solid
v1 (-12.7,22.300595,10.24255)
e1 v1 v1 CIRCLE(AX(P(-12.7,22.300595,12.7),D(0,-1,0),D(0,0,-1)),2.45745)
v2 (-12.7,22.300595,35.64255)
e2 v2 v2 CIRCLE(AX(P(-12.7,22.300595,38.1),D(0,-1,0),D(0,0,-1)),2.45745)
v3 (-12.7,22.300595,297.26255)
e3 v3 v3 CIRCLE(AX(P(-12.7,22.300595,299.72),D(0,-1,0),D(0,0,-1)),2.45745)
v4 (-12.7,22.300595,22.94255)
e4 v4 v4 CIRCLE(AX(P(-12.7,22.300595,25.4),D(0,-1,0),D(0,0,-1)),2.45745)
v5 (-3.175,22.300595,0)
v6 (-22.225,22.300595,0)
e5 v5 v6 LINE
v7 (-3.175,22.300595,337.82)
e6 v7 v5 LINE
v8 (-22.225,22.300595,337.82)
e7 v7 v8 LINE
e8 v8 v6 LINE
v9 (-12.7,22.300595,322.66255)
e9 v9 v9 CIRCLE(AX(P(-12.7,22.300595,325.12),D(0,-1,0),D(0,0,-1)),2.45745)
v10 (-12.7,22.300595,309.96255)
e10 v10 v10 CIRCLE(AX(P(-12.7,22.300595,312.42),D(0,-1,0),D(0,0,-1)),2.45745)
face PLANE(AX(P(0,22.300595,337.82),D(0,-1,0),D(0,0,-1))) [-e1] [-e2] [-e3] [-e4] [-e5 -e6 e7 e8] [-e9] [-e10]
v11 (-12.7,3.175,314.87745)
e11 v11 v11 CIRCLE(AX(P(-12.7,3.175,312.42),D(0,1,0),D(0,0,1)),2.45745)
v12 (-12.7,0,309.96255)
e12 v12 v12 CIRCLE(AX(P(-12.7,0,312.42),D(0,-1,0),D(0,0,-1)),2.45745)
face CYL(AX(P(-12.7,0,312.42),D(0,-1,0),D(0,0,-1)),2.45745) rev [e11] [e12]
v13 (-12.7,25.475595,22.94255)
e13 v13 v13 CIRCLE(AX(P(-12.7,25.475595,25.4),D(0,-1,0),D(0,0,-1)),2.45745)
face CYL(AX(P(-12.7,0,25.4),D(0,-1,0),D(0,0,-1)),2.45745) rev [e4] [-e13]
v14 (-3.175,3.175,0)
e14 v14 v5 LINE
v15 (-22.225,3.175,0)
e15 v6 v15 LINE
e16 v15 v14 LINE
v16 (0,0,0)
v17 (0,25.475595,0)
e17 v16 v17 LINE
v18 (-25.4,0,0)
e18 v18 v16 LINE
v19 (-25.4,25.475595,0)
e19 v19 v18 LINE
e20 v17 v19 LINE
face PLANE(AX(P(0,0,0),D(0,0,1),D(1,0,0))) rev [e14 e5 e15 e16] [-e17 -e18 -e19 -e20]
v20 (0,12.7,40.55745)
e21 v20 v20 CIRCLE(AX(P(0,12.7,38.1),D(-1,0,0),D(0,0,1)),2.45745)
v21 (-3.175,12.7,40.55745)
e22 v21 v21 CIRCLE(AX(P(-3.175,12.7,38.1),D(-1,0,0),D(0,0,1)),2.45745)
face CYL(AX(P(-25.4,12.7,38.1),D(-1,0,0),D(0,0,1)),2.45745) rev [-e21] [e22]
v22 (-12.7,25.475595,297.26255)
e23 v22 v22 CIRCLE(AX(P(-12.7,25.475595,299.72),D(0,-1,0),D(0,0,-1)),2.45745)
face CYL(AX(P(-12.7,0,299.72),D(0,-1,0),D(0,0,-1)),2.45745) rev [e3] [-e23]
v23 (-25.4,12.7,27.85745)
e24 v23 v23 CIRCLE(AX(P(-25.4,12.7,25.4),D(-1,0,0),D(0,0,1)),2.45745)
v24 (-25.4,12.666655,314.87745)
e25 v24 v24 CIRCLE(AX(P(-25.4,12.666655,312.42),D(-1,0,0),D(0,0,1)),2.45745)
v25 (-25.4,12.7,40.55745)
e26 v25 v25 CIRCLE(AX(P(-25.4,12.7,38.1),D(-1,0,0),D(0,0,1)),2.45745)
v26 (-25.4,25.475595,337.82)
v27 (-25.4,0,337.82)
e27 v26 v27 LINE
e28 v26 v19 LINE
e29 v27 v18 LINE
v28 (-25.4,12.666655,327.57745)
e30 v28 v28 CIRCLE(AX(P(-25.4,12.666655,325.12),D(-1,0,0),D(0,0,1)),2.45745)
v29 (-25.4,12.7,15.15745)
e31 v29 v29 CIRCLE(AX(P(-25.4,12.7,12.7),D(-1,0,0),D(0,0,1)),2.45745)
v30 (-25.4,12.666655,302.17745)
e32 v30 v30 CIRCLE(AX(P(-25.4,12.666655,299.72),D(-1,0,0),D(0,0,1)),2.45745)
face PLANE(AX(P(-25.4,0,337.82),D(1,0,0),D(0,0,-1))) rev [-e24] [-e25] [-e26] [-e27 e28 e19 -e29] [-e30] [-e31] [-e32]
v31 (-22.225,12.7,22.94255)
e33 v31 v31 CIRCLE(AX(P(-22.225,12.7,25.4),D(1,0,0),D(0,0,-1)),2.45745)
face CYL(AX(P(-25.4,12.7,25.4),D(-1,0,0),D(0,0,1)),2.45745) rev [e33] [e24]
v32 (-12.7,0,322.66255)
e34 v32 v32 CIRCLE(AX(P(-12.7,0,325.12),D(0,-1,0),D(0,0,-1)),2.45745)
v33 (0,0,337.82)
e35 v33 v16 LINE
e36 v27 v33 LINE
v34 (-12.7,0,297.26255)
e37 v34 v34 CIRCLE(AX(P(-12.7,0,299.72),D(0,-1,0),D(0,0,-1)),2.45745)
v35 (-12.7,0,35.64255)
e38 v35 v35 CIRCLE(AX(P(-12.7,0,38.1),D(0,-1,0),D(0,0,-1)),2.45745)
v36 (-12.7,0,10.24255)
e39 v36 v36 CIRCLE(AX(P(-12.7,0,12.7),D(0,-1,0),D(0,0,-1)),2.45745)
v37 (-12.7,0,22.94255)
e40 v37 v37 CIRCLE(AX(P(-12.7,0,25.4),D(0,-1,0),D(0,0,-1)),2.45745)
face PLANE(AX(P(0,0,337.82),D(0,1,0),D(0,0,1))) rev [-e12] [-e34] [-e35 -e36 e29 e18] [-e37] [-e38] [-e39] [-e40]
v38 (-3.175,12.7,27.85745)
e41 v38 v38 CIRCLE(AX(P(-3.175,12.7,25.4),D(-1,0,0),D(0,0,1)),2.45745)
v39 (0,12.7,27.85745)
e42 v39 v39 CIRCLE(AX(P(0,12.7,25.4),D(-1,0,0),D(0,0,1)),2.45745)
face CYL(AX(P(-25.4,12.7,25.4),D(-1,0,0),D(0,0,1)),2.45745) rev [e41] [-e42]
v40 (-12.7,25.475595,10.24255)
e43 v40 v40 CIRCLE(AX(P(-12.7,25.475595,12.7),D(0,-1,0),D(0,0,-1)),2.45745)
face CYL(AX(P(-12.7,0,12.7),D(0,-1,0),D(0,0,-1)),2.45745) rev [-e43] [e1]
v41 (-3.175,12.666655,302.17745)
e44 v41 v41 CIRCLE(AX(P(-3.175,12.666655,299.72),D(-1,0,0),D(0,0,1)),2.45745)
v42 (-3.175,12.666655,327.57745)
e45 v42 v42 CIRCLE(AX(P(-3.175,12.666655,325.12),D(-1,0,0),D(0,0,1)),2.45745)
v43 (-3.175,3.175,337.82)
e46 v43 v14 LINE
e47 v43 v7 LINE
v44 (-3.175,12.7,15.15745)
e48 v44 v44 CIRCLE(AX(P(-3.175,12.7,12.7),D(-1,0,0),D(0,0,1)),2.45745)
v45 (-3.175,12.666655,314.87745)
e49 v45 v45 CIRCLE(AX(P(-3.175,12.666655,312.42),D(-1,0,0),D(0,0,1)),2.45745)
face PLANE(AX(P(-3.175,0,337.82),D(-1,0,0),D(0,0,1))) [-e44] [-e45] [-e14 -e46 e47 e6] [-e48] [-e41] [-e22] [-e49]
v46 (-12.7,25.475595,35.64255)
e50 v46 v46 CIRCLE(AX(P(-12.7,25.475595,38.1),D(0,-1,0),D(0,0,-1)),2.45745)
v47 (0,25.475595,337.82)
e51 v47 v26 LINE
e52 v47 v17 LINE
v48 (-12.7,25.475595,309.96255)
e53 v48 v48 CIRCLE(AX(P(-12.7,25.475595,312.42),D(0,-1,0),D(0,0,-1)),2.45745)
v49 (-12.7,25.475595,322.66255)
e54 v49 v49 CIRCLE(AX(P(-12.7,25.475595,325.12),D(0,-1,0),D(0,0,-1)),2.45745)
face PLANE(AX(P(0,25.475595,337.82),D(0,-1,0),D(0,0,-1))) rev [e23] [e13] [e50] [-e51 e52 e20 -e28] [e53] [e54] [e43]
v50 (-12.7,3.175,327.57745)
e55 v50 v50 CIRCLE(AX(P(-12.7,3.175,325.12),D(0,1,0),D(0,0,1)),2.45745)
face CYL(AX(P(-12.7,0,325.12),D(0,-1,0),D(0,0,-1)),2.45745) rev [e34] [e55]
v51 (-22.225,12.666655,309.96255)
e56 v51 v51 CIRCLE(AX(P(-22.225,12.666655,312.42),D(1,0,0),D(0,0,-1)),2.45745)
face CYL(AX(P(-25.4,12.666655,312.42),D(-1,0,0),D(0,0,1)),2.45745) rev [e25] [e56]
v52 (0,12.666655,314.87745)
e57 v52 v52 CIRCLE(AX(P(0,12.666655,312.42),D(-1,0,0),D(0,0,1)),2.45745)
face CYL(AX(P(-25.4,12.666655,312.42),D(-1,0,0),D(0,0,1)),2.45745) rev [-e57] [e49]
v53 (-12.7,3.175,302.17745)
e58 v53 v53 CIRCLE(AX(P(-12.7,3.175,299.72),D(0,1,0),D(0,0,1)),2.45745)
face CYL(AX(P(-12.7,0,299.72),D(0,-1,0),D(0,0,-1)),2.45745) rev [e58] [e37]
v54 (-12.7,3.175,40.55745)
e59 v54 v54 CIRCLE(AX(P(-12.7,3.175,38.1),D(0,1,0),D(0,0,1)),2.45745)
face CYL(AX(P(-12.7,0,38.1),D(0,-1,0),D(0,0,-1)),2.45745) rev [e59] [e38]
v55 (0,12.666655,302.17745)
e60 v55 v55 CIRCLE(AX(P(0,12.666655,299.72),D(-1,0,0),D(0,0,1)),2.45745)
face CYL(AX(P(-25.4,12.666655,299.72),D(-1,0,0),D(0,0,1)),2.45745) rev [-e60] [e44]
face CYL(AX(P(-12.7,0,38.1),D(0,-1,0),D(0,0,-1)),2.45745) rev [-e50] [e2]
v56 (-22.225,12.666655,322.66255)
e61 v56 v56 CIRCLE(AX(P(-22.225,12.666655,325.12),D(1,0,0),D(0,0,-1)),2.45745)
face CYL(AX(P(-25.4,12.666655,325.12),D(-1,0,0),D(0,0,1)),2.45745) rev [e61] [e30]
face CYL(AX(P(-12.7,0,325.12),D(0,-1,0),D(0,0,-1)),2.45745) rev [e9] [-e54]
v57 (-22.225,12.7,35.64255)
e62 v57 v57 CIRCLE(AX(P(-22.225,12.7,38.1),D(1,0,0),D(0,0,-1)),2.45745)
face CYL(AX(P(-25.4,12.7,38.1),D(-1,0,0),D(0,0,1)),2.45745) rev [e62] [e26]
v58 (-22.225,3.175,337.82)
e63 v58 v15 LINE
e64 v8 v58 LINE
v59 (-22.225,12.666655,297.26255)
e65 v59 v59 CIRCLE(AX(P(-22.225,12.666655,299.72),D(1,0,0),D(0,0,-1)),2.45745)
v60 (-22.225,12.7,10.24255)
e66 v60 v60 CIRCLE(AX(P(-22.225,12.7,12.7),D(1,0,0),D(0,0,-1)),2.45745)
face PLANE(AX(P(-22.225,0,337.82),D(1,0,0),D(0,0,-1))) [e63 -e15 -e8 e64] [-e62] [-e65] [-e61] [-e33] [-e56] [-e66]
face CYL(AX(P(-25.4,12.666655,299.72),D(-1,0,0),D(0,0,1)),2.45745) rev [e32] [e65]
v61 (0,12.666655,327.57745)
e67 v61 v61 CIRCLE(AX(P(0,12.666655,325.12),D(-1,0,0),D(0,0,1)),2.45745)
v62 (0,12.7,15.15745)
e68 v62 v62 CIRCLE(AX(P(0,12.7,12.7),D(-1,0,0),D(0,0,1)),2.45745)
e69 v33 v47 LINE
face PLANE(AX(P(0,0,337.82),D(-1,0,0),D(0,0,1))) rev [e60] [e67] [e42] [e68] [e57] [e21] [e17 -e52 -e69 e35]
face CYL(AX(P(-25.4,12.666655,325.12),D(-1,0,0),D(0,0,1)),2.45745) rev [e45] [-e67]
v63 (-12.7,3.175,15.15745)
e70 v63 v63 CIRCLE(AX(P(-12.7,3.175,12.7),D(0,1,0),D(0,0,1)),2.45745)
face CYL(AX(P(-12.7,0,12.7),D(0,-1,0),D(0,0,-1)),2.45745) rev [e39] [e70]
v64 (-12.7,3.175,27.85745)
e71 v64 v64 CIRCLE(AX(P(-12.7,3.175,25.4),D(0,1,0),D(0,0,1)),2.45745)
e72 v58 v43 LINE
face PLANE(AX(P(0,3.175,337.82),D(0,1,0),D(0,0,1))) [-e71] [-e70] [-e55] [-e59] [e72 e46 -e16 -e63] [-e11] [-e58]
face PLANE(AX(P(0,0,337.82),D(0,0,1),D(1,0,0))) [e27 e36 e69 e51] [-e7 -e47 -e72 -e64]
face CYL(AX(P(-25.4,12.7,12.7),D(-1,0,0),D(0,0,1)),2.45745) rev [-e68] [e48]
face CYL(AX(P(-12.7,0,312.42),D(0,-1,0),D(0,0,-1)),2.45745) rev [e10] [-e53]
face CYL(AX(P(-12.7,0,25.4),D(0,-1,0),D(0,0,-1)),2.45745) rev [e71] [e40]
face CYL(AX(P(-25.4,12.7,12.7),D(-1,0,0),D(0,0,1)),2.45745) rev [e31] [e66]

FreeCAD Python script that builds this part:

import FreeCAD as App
import Part
import Sketcher

V = App.Vector
Q = App.Units.Quantity

doc = App.newDocument("Part")
body = doc.addObject("PartDesign::Body", "Body")

sketch1 = doc.addObject("Sketcher::SketchObject", "Sketch")
body.addObject(sketch1)
sketch1.AttachmentSupport = (doc.XY_Plane, [""])
sketch1.MapMode = "FlatFace"
sketch1.addGeometry(Part.LineSegment(V(-25, 25, 0), V(-25, 0, 0)), False)
sketch1.addGeometry(Part.LineSegment(V(-25, 0, 0), V(0, 0, 0)), False)
sketch1.addGeometry(Part.LineSegment(V(0, 0, 0), V(0, 25, 0)), False)
sketch1.addGeometry(Part.LineSegment(V(0, 25, 0), V(-25, 25, 0)), False)
sketch1.addGeometry(Part.LineSegment(V(-3, 3, 0), V(-22, 3, 0)), False)
sketch1.addGeometry(Part.LineSegment(V(-22, 3, 0), V(-22, 22, 0)), False)
sketch1.addGeometry(Part.LineSegment(V(-22, 22, 0), V(-3, 22, 0)), False)
sketch1.addGeometry(Part.LineSegment(V(-3, 22, 0), V(-3, 3, 0)), False)
sketch1.addConstraint(Sketcher.Constraint("Coincident", 0, 2, 1, 1))
sketch1.addConstraint(Sketcher.Constraint("Coincident", 1, 2, 2, 1))
sketch1.addConstraint(Sketcher.Constraint("Coincident", 2, 2, 3, 1))
sketch1.addConstraint(Sketcher.Constraint("Coincident", 3, 2, 0, 1))
sketch1.addConstraint(Sketcher.Constraint("Coincident", 4, 2, 5, 1))
sketch1.addConstraint(Sketcher.Constraint("Coincident", 5, 2, 6, 1))
sketch1.addConstraint(Sketcher.Constraint("Coincident", 6, 2, 7, 1))
sketch1.addConstraint(Sketcher.Constraint("Coincident", 7, 2, 4, 1))
sketch1.addConstraint(Sketcher.Constraint("Vertical", 0))
sketch1.addConstraint(Sketcher.Constraint("Horizontal", 1))
sketch1.addConstraint(Sketcher.Constraint("Vertical", 2))
sketch1.addConstraint(Sketcher.Constraint("Horizontal", 3))
sketch1.addConstraint(Sketcher.Constraint("Horizontal", 4))
sketch1.addConstraint(Sketcher.Constraint("Vertical", 5))
sketch1.addConstraint(Sketcher.Constraint("Horizontal", 6))
sketch1.addConstraint(Sketcher.Constraint("Vertical", 7))
sketch1.addConstraint(Sketcher.Constraint("Coincident", 1, 2, -1, 1))
sketch1.addConstraint(Sketcher.Constraint("DistanceX", 1, 1, 1, 2, Q("1 in")))
sketch1.addConstraint(Sketcher.Constraint("DistanceX", 4, 2, 4, 1, Q("0.75 in")))
sketch1.addConstraint(Sketcher.Constraint("DistanceX", 4, 2, -1, 1, Q("0.875 in")))
sketch1.addConstraint(Sketcher.Constraint("DistanceY", -1, 1, 4, 2, Q("0.125 in")))
sketch1.addConstraint(Sketcher.Constraint("DistanceY", 5, 2, 3, 2, Q("0.125 in")))
sketch1.addConstraint(Sketcher.Constraint("DistanceY", 0, 2, 0, 1, Q("25.475595 mm")))
pad1 = doc.addObject("PartDesign::Pad", "Pad")
body.addObject(pad1)
pad1.Profile = sketch1
pad1.Length = Q("13.3 in")

sketch2 = doc.addObject("Sketcher::SketchObject", "Sketch001")
body.addObject(sketch2)
sketch2.AttachmentSupport = (doc.XZ_Plane, [""])
sketch2.MapMode = "FlatFace"
sketch2.addGeometry(Part.Circle(V(-12.7, 25.4, 0), V(0, 0, 1), 2.5), False)
sketch2.addGeometry(Part.Circle(V(-12.7, 12.7, 0), V(0, 0, 1), 2.5), False)
sketch2.addGeometry(Part.Circle(V(-12.7, 38.1, 0), V(0, 0, 1), 2.5), False)
sketch2.addGeometry(Part.Circle(V(-12.7, 299.7, 0), V(0, 0, 1), 2.5), False)
sketch2.addGeometry(Part.Circle(V(-12.7, 312.4, 0), V(0, 0, 1), 2.5), False)
sketch2.addGeometry(Part.Circle(V(-12.7, 325.1, 0), V(0, 0, 1), 2.5), False)
sketch2.addConstraint(Sketcher.Constraint("Equal", 0, 1))
sketch2.addConstraint(Sketcher.Constraint("Equal", 1, 2))
sketch2.addConstraint(Sketcher.Constraint("Equal", 2, 3))
sketch2.addConstraint(Sketcher.Constraint("Equal", 3, 4))
sketch2.addConstraint(Sketcher.Constraint("Equal", 4, 5))
sketch2.addConstraint(Sketcher.Constraint("Vertical", 0, 3, 1, 3))
sketch2.addConstraint(Sketcher.Constraint("Vertical", 1, 3, 2, 3))
sketch2.addConstraint(Sketcher.Constraint("Vertical", 2, 3, 3, 3))
sketch2.addConstraint(Sketcher.Constraint("Vertical", 3, 3, 4, 3))
sketch2.addConstraint(Sketcher.Constraint("Vertical", 4, 3, 5, 3))
sketch2.addConstraint(Sketcher.Constraint("DistanceY", -1, 1, 0, 3, Q("1 in")))
sketch2.addConstraint(Sketcher.Constraint("DistanceY", 1, 3, 2, 3, Q("1 in")))
sketch2.addConstraint(Sketcher.Constraint("DistanceY", 3, 3, 5, 3, Q("1 in")))
sketch2.addConstraint(Sketcher.Constraint("Diameter", 0, Q("0.1935 in")))
sketch2.addConstraint(Sketcher.Constraint("DistanceX", 0, 3, -1, 1, Q("0.5 in")))
sketch2.addConstraint(Sketcher.Constraint("DistanceY", -1, 1, 1, 3, Q("0.5 in")))
sketch2.addConstraint(Sketcher.Constraint("DistanceY", -1, 1, 3, 3, Q("11.8 in")))
sketch2.addConstraint(Sketcher.Constraint("DistanceY", -1, 1, 4, 3, Q("12.3 in")))
doc.recompute()
hole = doc.addObject("PartDesign::Hole", "Hole")
body.addObject(hole)
hole.Profile = sketch2
hole.ThreadType = "None"
hole.Diameter = Q("0.1935 in")
hole.DepthType = "ThroughAll"

sketch3 = doc.addObject("Sketcher::SketchObject", "Sketch002")
body.addObject(sketch3)
sketch3.AttachmentSupport = (doc.YZ_Plane, [""])
sketch3.MapMode = "FlatFace"
sketch3.AttachmentOffset = App.Placement(V(0, 0, -1 * 25.4), App.Rotation())
sketch3.addGeometry(Part.Circle(V(12.7, 325.1, 0), V(0, 0, 1), 2.5), False)
sketch3.addGeometry(Part.Circle(V(12.7, 312.4, 0), V(0, 0, 1), 2.5), False)
sketch3.addGeometry(Part.Circle(V(12.7, 299.7, 0), V(0, 0, 1), 2.5), False)
sketch3.addGeometry(Part.Circle(V(12.7, 38.1, 0), V(0, 0, 1), 2.5), False)
sketch3.addGeometry(Part.Circle(V(12.7, 25.4, 0), V(0, 0, 1), 2.5), False)
sketch3.addGeometry(Part.Circle(V(12.7, 12.7, 0), V(0, 0, 1), 2.5), False)
sketch3.addConstraint(Sketcher.Constraint("Equal", 0, 1))
sketch3.addConstraint(Sketcher.Constraint("Equal", 1, 2))
sketch3.addConstraint(Sketcher.Constraint("Equal", 2, 3))
sketch3.addConstraint(Sketcher.Constraint("Equal", 3, 4))
sketch3.addConstraint(Sketcher.Constraint("Equal", 4, 5))
sketch3.addConstraint(Sketcher.Constraint("Vertical", 0, 3, 1, 3))
sketch3.addConstraint(Sketcher.Constraint("Vertical", 1, 3, 2, 3))
sketch3.addConstraint(Sketcher.Constraint("Vertical", 3, 3, 4, 3))
sketch3.addConstraint(Sketcher.Constraint("Vertical", 4, 3, 5, 3))
sketch3.addConstraint(Sketcher.Constraint("DistanceY", -1, 1, 4, 3, Q("1 in")))
sketch3.addConstraint(Sketcher.Constraint("DistanceY", 2, 3, 0, 3, Q("1 in")))
sketch3.addConstraint(Sketcher.Constraint("DistanceY", 5, 3, 3, 3, Q("1 in")))
sketch3.addConstraint(Sketcher.Constraint("Diameter", 0, Q("0.1935 in")))
sketch3.addConstraint(Sketcher.Constraint("DistanceY", -1, 1, 0, 3, Q("12.8 in")))
sketch3.addConstraint(Sketcher.Constraint("DistanceY", -1, 1, 1, 3, Q("12.3 in")))
sketch3.addConstraint(Sketcher.Constraint("DistanceX", -1, 1, 3, 3, Q("0.5 in")))
sketch3.addConstraint(Sketcher.Constraint("DistanceY", -1, 1, 3, 3, Q("1.5 in")))
sketch3.addConstraint(Sketcher.Constraint("DistanceX", -1, 1, 0, 3, Q("12.666655 mm")))
doc.recompute()
hole2 = doc.addObject("PartDesign::Hole", "Hole001")
body.addObject(hole2)
hole2.Profile = sketch3
hole2.ThreadType = "None"
hole2.Diameter = Q("0.1935 in")
hole2.DepthType = "ThroughAll"
hole2.Reversed = True

doc.recompute()
